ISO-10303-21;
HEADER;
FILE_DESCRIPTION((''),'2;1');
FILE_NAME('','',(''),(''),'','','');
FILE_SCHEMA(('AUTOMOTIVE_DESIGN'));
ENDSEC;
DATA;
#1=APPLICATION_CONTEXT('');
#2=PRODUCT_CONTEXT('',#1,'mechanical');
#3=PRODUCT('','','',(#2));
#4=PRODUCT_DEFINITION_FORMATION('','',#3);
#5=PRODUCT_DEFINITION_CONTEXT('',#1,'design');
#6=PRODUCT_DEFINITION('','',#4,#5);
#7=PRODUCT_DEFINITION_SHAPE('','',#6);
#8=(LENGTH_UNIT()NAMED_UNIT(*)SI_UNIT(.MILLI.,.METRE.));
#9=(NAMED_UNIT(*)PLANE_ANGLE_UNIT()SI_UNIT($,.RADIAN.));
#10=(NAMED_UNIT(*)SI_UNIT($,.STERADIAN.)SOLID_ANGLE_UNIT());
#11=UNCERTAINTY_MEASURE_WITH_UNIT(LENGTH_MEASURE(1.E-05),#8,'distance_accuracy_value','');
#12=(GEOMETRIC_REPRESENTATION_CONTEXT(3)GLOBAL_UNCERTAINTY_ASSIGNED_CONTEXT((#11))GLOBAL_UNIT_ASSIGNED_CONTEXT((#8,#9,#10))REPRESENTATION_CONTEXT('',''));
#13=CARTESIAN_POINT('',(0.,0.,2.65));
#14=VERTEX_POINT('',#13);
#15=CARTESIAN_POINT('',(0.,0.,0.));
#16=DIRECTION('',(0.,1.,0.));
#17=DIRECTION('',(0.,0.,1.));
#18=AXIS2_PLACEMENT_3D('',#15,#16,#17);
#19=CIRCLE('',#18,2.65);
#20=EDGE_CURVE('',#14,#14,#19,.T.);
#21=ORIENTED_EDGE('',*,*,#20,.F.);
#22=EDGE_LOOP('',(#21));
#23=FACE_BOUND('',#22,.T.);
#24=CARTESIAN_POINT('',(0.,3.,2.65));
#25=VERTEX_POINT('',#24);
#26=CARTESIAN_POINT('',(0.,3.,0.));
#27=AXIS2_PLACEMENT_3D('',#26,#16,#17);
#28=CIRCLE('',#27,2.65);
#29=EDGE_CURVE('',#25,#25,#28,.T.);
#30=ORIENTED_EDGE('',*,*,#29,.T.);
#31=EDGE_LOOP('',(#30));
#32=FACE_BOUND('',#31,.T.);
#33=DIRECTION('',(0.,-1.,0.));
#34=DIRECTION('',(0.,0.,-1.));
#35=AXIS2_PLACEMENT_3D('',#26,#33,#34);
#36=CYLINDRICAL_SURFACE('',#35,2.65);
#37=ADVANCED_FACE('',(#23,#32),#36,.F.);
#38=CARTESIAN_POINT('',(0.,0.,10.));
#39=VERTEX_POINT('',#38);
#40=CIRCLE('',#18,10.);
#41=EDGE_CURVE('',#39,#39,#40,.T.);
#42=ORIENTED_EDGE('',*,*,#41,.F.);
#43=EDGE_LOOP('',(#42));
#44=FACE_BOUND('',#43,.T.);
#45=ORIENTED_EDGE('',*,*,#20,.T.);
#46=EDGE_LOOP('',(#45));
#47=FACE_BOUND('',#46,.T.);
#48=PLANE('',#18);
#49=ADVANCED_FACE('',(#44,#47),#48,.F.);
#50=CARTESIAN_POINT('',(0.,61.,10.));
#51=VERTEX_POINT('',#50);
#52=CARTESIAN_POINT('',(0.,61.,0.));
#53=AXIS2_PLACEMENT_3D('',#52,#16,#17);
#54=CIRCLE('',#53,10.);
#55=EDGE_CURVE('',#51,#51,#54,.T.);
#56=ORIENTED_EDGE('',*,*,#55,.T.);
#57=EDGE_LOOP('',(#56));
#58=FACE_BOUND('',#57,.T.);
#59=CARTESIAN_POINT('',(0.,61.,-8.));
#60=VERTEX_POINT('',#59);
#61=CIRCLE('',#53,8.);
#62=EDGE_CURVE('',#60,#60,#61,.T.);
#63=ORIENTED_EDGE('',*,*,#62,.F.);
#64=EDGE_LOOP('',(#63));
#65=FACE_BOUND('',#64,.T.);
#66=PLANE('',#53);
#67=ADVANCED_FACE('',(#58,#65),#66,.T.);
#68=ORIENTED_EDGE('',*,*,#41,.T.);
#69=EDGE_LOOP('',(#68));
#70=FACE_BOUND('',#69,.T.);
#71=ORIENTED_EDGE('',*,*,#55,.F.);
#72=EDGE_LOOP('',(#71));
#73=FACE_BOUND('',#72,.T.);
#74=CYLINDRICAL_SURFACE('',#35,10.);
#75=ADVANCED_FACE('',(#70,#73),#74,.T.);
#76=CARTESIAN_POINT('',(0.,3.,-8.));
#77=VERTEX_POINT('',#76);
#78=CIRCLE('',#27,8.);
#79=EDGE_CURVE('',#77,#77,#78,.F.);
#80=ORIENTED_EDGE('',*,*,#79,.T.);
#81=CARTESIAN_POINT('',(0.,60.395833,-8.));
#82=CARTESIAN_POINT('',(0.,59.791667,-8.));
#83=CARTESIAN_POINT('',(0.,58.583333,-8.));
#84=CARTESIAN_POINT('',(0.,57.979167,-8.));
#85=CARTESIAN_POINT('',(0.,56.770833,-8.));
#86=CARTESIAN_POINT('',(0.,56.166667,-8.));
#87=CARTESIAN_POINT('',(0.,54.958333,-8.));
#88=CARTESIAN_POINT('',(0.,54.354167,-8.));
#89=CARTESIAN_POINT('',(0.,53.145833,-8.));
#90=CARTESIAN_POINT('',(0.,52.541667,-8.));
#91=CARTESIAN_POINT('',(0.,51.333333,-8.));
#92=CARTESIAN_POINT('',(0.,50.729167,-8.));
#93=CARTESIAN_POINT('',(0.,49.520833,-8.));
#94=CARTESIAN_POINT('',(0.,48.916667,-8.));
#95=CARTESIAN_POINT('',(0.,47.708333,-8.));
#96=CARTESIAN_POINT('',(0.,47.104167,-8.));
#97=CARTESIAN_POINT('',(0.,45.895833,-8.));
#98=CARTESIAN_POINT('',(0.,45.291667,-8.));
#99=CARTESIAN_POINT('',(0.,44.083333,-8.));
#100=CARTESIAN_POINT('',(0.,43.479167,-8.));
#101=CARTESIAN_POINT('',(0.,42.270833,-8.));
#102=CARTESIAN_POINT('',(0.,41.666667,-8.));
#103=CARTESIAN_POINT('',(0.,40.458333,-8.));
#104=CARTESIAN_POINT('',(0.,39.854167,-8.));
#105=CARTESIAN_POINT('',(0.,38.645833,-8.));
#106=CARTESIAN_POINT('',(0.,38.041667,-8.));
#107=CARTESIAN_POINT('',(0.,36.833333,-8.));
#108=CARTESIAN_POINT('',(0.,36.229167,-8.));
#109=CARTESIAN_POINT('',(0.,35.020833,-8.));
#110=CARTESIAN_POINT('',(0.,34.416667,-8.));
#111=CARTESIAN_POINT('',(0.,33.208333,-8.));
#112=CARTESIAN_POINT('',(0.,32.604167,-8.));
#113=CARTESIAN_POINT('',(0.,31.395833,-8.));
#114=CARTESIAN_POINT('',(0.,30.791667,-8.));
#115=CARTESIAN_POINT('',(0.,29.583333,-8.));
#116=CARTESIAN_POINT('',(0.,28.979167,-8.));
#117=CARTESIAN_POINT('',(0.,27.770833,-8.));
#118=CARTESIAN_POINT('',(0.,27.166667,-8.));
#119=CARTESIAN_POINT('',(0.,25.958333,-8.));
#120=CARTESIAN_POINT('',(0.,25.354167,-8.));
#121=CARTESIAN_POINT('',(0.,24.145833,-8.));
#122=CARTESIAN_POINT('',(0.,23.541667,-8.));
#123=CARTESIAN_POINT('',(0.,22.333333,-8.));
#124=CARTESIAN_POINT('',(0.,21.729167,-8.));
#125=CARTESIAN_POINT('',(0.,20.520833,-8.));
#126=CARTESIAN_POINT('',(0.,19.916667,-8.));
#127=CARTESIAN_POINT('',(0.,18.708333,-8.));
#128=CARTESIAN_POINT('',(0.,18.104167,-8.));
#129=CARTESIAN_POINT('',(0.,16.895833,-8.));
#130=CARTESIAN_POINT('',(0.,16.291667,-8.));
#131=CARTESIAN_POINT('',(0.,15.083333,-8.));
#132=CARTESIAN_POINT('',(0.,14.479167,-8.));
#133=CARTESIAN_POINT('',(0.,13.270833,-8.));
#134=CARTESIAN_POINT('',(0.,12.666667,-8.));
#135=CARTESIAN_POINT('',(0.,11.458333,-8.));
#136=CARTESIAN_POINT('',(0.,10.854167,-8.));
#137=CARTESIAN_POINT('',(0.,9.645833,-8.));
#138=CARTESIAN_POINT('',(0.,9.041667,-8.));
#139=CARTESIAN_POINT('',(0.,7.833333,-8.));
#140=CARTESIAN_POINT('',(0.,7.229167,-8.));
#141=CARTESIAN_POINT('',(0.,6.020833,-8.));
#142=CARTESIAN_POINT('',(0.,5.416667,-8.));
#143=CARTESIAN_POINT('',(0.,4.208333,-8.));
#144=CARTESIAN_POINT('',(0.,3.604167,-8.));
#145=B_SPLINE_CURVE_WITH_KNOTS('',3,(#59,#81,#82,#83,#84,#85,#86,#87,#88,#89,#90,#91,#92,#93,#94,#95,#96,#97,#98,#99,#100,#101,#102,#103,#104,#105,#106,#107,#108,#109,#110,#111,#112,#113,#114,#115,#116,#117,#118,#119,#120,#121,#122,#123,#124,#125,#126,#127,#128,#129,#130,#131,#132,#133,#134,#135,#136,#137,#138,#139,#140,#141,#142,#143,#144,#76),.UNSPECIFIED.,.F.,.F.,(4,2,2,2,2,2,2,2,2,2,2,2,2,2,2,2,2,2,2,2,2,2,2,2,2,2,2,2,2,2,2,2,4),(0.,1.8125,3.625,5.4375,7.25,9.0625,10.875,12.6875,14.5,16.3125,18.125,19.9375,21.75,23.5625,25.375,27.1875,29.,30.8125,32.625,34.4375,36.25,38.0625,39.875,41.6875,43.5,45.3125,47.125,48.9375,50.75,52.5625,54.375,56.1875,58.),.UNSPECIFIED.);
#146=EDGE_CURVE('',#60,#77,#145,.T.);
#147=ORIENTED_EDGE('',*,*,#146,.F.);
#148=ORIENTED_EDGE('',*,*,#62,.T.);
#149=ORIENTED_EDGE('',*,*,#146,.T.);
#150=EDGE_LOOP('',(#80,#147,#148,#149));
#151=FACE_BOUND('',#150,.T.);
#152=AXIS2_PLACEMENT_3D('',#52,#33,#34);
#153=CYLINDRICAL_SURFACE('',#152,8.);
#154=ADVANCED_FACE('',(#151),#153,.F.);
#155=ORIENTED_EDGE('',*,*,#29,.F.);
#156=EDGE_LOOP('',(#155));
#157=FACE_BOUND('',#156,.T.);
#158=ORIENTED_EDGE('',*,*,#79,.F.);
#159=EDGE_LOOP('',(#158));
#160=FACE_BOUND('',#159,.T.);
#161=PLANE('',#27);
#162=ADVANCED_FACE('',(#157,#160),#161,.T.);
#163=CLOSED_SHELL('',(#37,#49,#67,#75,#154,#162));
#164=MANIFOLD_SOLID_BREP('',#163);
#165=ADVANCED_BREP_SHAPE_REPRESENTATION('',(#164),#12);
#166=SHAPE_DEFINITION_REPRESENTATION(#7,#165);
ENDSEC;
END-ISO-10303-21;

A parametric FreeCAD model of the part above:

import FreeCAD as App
import Part
import Sketcher
Q = App.Units.Quantity

doc = App.newDocument("Part")
body = doc.addObject("PartDesign::Body", "Body")

# Sketch on XZ plane
sketch1 = body.newObject("Sketcher::SketchObject", "Sketch")
sketch1.AttachmentSupport = (doc.getObject("XZ_Plane"), [""])
sketch1.MapMode = "FlatFace"
sketch1.addGeometry([
    Part.Circle(App.Vector(0, 0, 0), App.Vector(0, 0, 1), 10),
    Part.Circle(App.Vector(0, 0, 0), App.Vector(0, 0, 1), 2.65),
], False)
sketch1.addConstraint([
    Sketcher.Constraint("Coincident", 0, 3, -1, 1),
    Sketcher.Constraint("Coincident", 1, 3, -1, 1),
    Sketcher.Constraint("Diameter", 0, Q("20 mm")),
    Sketcher.Constraint("Diameter", 1, Q("5.3 mm")),
])
pad1 = body.newObject("PartDesign::Pad", "Pad")
pad1.Profile = sketch1
pad1.Length = 3
pad1.Reversed = True

# Sketch on XZ plane
sketch2 = body.newObject("Sketcher::SketchObject", "Sketch001")
sketch2.AttachmentSupport = (doc.getObject("XZ_Plane"), [""])
sketch2.MapMode = "FlatFace"
sketch2.AttachmentOffset = App.Placement(App.Vector(0, 0, -3), App.Rotation())
sketch2.addGeometry([
    Part.Circle(App.Vector(0, 0, 0), App.Vector(0, 0, 1), 10),
    Part.Circle(App.Vector(0, 0, 0), App.Vector(0, 0, 1), 8),
], False)
sketch2.addConstraint([
    Sketcher.Constraint("Coincident", 0, 3, -1, 1),
    Sketcher.Constraint("Coincident", 1, 3, -1, 1),
    Sketcher.Constraint("Diameter", 0, Q("20 mm")),
    Sketcher.Constraint("Diameter", 1, Q("16 mm")),
])
pad2 = body.newObject("PartDesign::Pad", "Pad001")
pad2.Profile = sketch2
pad2.Length = 58
pad2.Reversed = True

doc.recompute()
